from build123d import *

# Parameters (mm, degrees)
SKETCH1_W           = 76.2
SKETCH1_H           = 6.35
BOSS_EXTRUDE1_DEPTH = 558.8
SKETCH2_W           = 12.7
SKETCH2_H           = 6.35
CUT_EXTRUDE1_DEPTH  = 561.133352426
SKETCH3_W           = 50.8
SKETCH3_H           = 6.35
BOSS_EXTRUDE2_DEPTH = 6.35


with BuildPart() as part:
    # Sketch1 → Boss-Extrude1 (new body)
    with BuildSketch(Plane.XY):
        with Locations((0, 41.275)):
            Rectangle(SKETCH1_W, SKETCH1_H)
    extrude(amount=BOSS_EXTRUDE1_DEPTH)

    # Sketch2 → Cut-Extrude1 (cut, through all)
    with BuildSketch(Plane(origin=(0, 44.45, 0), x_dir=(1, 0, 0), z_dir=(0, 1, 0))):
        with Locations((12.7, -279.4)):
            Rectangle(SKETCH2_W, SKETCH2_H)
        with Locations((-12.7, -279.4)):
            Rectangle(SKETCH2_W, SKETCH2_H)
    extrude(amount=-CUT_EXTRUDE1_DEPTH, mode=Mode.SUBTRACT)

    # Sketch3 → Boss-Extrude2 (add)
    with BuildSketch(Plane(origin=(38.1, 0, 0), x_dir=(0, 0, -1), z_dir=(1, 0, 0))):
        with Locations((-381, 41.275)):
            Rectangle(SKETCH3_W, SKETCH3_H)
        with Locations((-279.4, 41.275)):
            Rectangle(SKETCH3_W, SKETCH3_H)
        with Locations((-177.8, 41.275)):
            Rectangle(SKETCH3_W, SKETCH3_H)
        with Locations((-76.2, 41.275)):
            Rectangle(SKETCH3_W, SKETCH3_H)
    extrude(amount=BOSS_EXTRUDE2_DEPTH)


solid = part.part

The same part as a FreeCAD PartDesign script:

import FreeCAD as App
import Part
import Sketcher

V = App.Vector
Q = App.Units.Quantity


def add_polygon(sketch, points):
    """Adds a closed chain of lines whose ends are joined by coincident constraints."""
    first, n = sketch.GeometryCount, len(points)
    for a, b in zip(points, points[1:] + points[:1]):
        sketch.addGeometry(Part.LineSegment(App.Vector(*a, 0), App.Vector(*b, 0)), False)
    for i in range(n):
        sketch.addConstraint(Sketcher.Constraint("Coincident", first + i, 2, first + (i + 1) % n, 1))

doc = App.newDocument("Part")
body = doc.addObject("PartDesign::Body", "Body")

# Sketch on XY plane
sketch1 = doc.addObject("Sketcher::SketchObject", "Sketch")
body.addObject(sketch1)
sketch1.AttachmentSupport = (doc.XY_Plane, [""])
sketch1.MapMode = "FlatFace"
add_polygon(sketch1, [(-38.1, 44.45), (-38.1, 38.1), (38.1, 38.1), (38.1, 44.45)])  # lines 0-3
sketch1.addConstraint(Sketcher.Constraint("Vertical", 0))
sketch1.addConstraint(Sketcher.Constraint("Horizontal", 1))
sketch1.addConstraint(Sketcher.Constraint("Vertical", 2))
sketch1.addConstraint(Sketcher.Constraint("Horizontal", 3))
sketch1.addConstraint(Sketcher.Constraint("DistanceX", 1, 1, 1, 2, Q("3 in")))
sketch1.addConstraint(Sketcher.Constraint("DistanceY", 0, 2, 0, 1, Q("0.25 in")))
sketch1.addConstraint(Sketcher.Constraint("DistanceX", 0, 2, -1, 1, Q("1.5 in")))
sketch1.addConstraint(Sketcher.Constraint("DistanceY", -1, 1, 0, 2, Q("1.5 in")))
pad1 = doc.addObject("PartDesign::Pad", "Pad")
body.addObject(pad1)
pad1.Profile = sketch1
pad1.Length = Q("22 in")

# Sketch on XZ plane
sketch2 = doc.addObject("Sketcher::SketchObject", "Sketch001")
body.addObject(sketch2)
sketch2.AttachmentSupport = (doc.XZ_Plane, [""])
sketch2.MapMode = "FlatFace"
sketch2.AttachmentOffset = App.Placement(V(0, 0, -1.75 * 25.4), App.Rotation())
add_polygon(sketch2, [(6.35, 276.225), (6.35, 282.575), (19.05, 282.575), (19.05, 276.225)])  # lines 0-3
add_polygon(sketch2, [(-19.05, 276.225), (-19.05, 282.575), (-6.35, 282.575), (-6.35, 276.225)])  # lines 4-7
sketch2.addConstraint(Sketcher.Constraint("Vertical", 0))
sketch2.addConstraint(Sketcher.Constraint("Horizontal", 1))
sketch2.addConstraint(Sketcher.Constraint("Vertical", 2))
sketch2.addConstraint(Sketcher.Constraint("Horizontal", 3))
sketch2.addConstraint(Sketcher.Constraint("Vertical", 4))
sketch2.addConstraint(Sketcher.Constraint("Horizontal", 5))
sketch2.addConstraint(Sketcher.Constraint("Vertical", 6))
sketch2.addConstraint(Sketcher.Constraint("Horizontal", 7))
sketch2.addConstraint(Sketcher.Constraint("Symmetric", 1, 2, 4, 2, -2))
sketch2.addConstraint(Sketcher.Constraint("Symmetric", 3, 2, 6, 2, -2))
sketch2.addConstraint(Sketcher.Constraint("DistanceX", 1, 1, 1, 2, Q("0.5 in")))
sketch2.addConstraint(Sketcher.Constraint("DistanceX", 4, 2, 0, 2, Q("1 in")))
sketch2.addConstraint(Sketcher.Constraint("DistanceY", 0, 1, 0, 2, Q("0.25 in")))
sketch2.addConstraint(Sketcher.Constraint("DistanceY", -1, 1, 0, 2, Q("11.125 in")))
pocket1 = doc.addObject("PartDesign::Pocket", "Pocket")
body.addObject(pocket1)
pocket1.Profile = sketch2
pocket1.Type = "ThroughAll"
pocket1.Reversed = True

# Sketch on YZ plane
sketch3 = doc.addObject("Sketcher::SketchObject", "Sketch002")
body.addObject(sketch3)
sketch3.AttachmentSupport = (doc.YZ_Plane, [""])
sketch3.MapMode = "FlatFace"
sketch3.AttachmentOffset = App.Placement(V(0, 0, 1.5 * 25.4), App.Rotation())
add_polygon(sketch3, [(44.45, 406.4), (38.1, 406.4), (38.1, 355.6), (44.45, 355.6)])  # lines 0-3
add_polygon(sketch3, [(44.45, 304.8), (38.1, 304.8), (38.1, 254), (44.45, 254)])  # lines 4-7
add_polygon(sketch3, [(44.45, 203.2), (38.1, 203.2), (38.1, 152.4), (44.45, 152.4)])  # lines 8-11
add_polygon(sketch3, [(44.45, 101.6), (38.1, 101.6), (38.1, 50.8), (44.45, 50.8)])  # lines 12-15
sketch3.addConstraint(Sketcher.Constraint("Horizontal", 0))
sketch3.addConstraint(Sketcher.Constraint("Vertical", 1))
sketch3.addConstraint(Sketcher.Constraint("Horizontal", 2))
sketch3.addConstraint(Sketcher.Constraint("Vertical", 3))
sketch3.addConstraint(Sketcher.Constraint("Horizontal", 4))
sketch3.addConstraint(Sketcher.Constraint("Vertical", 5))
sketch3.addConstraint(Sketcher.Constraint("Horizontal", 6))
sketch3.addConstraint(Sketcher.Constraint("Vertical", 7))
sketch3.addConstraint(Sketcher.Constraint("Horizontal", 8))
sketch3.addConstraint(Sketcher.Constraint("Vertical", 9))
sketch3.addConstraint(Sketcher.Constraint("Horizontal", 10))
sketch3.addConstraint(Sketcher.Constraint("Vertical", 11))
sketch3.addConstraint(Sketcher.Constraint("Horizontal", 12))
sketch3.addConstraint(Sketcher.Constraint("Vertical", 13))
sketch3.addConstraint(Sketcher.Constraint("Horizontal", 14))
sketch3.addConstraint(Sketcher.Constraint("Vertical", 15))
sketch3.addConstraint(Sketcher.Constraint("Vertical", 1, 2, 4, 2))
sketch3.addConstraint(Sketcher.Constraint("Vertical", 3, 2, 6, 2))
sketch3.addConstraint(Sketcher.Constraint("Vertical", 5, 2, 8, 2))
sketch3.addConstraint(Sketcher.Constraint("Vertical", 7, 2, 10, 2))
sketch3.addConstraint(Sketcher.Constraint("Vertical", 9, 2, 12, 2))
sketch3.addConstraint(Sketcher.Constraint("Vertical", 11, 2, 14, 2))
sketch3.addConstraint(Sketcher.Constraint("Equal", 3, 5))
sketch3.addConstraint(Sketcher.Constraint("Equal", 7, 9))
sketch3.addConstraint(Sketcher.Constraint("Equal", 11, 13))
sketch3.addConstraint(Sketcher.Constraint("DistanceY", 1, 2, 1, 1, Q("2 in")))
sketch3.addConstraint(Sketcher.Constraint("DistanceY", -1, 1, 0, 2, Q("16 in")))
sketch3.addConstraint(Sketcher.Constraint("DistanceY", -1, 1, 4, 2, Q("12 in")))
sketch3.addConstraint(Sketcher.Constraint("DistanceY", -1, 1, 8, 2, Q("8 in")))
sketch3.addConstraint(Sketcher.Constraint("DistanceY", -1, 1, 12, 2, Q("4 in")))
sketch3.addConstraint(Sketcher.Constraint("DistanceX", 0, 2, 0, 1, Q("0.25 in")))
sketch3.addConstraint(Sketcher.Constraint("DistanceX", -1, 1, 0, 2, Q("1.5 in")))
pad2 = doc.addObject("PartDesign::Pad", "Pad001")
body.addObject(pad2)
pad2.Profile = sketch3
pad2.Length = Q("0.25 in")

doc.recompute()
